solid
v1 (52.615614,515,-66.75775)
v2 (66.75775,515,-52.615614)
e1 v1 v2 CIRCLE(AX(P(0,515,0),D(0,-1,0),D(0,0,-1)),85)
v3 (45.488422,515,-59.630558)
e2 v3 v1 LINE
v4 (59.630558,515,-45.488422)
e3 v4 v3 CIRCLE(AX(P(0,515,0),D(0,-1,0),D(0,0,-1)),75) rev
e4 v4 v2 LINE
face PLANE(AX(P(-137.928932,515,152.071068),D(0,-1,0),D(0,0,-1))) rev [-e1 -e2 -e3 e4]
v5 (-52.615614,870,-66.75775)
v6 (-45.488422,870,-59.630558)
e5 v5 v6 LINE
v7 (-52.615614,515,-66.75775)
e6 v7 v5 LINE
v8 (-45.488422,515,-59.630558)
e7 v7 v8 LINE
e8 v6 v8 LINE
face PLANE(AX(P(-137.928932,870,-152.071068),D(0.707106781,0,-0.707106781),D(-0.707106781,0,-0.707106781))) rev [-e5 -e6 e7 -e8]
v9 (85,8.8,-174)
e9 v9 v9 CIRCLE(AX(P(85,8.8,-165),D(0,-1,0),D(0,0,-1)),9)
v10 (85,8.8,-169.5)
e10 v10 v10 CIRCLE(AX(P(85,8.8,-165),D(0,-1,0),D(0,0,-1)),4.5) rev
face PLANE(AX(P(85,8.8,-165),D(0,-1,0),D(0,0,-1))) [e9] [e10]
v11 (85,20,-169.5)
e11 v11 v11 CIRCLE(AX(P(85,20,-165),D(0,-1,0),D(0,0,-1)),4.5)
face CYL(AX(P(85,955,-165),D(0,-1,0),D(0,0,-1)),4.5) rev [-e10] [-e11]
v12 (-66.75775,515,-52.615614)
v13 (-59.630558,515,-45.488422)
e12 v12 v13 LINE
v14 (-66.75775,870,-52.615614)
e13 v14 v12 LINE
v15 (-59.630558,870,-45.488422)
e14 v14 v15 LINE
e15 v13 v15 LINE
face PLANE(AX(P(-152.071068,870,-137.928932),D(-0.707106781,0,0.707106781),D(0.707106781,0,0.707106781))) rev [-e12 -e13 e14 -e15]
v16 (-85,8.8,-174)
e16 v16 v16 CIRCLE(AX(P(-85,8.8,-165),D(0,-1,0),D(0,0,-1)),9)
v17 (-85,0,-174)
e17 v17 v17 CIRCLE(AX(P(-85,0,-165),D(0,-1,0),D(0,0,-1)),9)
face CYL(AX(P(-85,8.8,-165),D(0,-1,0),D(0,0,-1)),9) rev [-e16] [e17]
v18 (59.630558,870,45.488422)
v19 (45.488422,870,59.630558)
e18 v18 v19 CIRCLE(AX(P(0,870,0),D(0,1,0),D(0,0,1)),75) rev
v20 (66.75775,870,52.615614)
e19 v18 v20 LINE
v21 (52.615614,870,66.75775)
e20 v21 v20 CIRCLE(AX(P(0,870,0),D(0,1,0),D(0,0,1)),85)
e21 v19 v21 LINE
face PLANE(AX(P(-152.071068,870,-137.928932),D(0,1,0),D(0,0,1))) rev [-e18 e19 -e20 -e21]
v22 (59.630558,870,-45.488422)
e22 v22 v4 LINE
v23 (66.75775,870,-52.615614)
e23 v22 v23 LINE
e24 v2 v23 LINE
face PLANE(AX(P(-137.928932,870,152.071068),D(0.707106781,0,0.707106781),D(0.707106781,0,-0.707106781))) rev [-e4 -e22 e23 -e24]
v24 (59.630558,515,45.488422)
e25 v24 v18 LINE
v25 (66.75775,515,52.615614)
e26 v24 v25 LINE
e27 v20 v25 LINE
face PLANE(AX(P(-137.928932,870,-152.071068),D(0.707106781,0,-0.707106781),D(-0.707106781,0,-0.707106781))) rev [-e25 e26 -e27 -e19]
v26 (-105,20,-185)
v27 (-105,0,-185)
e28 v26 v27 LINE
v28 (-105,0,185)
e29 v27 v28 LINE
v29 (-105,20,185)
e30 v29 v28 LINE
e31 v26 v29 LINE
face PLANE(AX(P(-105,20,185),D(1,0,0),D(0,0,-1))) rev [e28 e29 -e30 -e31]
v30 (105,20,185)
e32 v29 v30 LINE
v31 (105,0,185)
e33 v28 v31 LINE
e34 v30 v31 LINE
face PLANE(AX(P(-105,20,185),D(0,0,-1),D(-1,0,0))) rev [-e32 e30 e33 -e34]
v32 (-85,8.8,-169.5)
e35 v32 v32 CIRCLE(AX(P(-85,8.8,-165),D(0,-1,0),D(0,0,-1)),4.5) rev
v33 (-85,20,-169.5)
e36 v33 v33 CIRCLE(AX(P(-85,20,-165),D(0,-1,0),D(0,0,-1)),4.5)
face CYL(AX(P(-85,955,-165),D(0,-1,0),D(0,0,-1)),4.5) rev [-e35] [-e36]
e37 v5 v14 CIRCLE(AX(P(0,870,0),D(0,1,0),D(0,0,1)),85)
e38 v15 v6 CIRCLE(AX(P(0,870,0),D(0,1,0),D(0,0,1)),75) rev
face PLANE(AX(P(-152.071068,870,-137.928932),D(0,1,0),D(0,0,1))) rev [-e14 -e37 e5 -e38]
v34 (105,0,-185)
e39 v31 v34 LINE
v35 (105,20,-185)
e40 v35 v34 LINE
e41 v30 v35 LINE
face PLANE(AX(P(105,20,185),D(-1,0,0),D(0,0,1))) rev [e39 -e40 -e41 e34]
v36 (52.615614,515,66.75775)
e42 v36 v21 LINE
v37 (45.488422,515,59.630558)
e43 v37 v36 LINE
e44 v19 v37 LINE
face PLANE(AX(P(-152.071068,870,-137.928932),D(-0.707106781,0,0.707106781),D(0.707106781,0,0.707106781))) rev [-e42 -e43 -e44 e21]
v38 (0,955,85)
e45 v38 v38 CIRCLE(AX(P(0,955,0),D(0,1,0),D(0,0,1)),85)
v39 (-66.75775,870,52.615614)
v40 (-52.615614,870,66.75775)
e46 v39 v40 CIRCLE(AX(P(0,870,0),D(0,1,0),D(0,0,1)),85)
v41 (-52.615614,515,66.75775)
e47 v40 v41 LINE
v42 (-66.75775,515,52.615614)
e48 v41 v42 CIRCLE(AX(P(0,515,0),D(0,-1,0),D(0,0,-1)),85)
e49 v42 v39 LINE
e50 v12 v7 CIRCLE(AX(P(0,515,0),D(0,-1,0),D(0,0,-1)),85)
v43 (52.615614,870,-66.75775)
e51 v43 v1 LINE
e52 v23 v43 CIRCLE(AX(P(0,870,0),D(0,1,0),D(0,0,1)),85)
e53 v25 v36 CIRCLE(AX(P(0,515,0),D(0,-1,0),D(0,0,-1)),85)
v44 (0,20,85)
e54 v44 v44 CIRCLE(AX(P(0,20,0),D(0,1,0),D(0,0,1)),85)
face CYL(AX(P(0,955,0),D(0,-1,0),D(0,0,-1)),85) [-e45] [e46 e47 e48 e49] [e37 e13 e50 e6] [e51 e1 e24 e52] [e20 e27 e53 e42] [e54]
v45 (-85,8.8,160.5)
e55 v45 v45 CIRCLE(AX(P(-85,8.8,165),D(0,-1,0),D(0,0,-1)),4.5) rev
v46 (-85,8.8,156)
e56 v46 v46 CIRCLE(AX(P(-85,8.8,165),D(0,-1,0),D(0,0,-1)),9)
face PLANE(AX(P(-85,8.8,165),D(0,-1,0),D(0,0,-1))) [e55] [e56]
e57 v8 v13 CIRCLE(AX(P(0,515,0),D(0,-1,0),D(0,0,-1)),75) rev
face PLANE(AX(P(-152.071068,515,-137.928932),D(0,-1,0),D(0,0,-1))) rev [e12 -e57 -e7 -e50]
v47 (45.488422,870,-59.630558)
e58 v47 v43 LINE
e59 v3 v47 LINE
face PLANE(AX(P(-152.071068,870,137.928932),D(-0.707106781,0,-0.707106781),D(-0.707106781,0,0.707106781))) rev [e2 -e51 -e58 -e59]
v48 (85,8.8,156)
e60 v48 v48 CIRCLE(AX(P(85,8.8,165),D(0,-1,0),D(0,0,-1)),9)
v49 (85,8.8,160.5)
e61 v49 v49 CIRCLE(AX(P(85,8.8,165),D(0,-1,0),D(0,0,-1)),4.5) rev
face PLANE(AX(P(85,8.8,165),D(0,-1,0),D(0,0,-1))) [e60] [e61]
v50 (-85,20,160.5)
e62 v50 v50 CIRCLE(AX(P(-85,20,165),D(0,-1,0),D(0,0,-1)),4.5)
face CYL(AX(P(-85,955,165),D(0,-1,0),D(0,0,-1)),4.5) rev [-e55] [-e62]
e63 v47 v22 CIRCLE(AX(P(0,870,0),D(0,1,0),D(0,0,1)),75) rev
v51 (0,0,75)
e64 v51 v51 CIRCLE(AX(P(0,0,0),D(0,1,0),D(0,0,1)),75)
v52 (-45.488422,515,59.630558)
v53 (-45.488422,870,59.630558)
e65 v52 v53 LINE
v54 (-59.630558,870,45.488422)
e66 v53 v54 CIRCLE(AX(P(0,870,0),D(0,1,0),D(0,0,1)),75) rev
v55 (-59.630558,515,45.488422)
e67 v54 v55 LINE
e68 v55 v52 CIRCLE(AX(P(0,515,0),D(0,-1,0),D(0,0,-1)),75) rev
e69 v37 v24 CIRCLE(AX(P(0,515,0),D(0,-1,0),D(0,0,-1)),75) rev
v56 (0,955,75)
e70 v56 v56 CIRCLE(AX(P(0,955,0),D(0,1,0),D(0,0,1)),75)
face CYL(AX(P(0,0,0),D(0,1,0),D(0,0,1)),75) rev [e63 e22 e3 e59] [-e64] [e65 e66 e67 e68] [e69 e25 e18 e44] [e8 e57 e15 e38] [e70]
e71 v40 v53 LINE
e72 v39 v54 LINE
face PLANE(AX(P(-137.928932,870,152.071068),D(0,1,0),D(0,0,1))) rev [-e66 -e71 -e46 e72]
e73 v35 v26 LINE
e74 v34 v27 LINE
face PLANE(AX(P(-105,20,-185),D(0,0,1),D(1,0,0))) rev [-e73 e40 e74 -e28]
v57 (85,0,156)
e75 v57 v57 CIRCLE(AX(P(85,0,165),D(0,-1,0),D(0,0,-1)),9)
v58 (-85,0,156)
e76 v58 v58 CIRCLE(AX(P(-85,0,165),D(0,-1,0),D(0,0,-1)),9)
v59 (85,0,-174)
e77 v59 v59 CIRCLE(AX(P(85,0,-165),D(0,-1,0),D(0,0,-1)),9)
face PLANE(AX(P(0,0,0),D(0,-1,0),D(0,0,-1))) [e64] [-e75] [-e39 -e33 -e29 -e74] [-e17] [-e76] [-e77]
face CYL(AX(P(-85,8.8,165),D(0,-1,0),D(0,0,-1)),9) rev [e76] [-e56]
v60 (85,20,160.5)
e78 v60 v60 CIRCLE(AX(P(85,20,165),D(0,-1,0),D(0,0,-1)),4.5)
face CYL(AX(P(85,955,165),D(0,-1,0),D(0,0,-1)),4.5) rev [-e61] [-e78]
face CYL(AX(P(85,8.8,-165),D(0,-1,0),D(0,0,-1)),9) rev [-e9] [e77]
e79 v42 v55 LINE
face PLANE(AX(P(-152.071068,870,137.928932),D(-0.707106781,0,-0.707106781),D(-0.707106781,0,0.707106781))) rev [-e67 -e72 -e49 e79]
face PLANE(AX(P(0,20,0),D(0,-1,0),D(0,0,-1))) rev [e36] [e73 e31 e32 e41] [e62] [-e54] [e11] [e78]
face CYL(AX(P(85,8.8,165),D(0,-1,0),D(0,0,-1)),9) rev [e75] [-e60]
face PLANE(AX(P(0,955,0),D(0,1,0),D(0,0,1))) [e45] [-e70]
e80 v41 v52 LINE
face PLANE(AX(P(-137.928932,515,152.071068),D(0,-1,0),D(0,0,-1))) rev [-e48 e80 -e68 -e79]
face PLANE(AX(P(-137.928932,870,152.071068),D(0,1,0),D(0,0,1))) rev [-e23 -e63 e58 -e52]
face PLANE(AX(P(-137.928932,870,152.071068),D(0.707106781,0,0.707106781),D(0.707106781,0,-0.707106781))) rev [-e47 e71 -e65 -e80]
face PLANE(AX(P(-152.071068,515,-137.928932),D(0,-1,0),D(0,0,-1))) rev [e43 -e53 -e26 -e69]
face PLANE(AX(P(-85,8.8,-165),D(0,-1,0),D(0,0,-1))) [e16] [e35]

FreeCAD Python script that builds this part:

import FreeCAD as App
import Part
import Sketcher
Q = App.Units.Quantity


def add_polygon(sketch, points):
    """Adds a closed chain of lines whose ends are joined by coincident constraints."""
    first, n = sketch.GeometryCount, len(points)
    for a, b in zip(points, points[1:] + points[:1]):
        sketch.addGeometry(Part.LineSegment(App.Vector(*a, 0), App.Vector(*b, 0)), False)
    for i in range(n):
        sketch.addConstraint(Sketcher.Constraint("Coincident", first + i, 2, first + (i + 1) % n, 1))

doc = App.newDocument("Part")
body = doc.addObject("PartDesign::Body", "Body")

# Sketch on XZ plane
sketch1 = body.newObject("Sketcher::SketchObject", "Sketch")
sketch1.AttachmentSupport = (doc.getObject("XZ_Plane"), [""])
sketch1.MapMode = "FlatFace"
add_polygon(sketch1, [(-105, -185), (-105, 185), (105, 185), (105, -185)])  # lines 0-3
sketch1.addConstraint([
    Sketcher.Constraint("Vertical", 0),
    Sketcher.Constraint("Horizontal", 1),
    Sketcher.Constraint("Vertical", 2),
    Sketcher.Constraint("Horizontal", 3),
    Sketcher.Constraint("Symmetric", 0, 2, 2, 2, -1, 1),
    Sketcher.Constraint("DistanceX", 1, 1, 1, 2, Q("210 mm")),
    Sketcher.Constraint("DistanceY", 0, 1, 0, 2, Q("370 mm")),
])
pad1 = body.newObject("PartDesign::Pad", "Pad")
pad1.Profile = sketch1
pad1.Length = 20
pad1.Reversed = True

# Sketch on XZ plane
sketch2 = body.newObject("Sketcher::SketchObject", "Sketch001")
sketch2.AttachmentSupport = (doc.getObject("XZ_Plane"), [""])
sketch2.MapMode = "FlatFace"
sketch2.AttachmentOffset = App.Placement(App.Vector(0, 0, -20), App.Rotation())
sketch2.addGeometry(Part.Circle(App.Vector(0, 0, 0), App.Vector(0, 0, 1), 85), False)
sketch2.addConstraint([
    Sketcher.Constraint("Coincident", 0, 3, -1, 1),
    Sketcher.Constraint("Diameter", 0, Q("170 mm")),
])
pad2 = body.newObject("PartDesign::Pad", "Pad001")
pad2.Profile = sketch2
pad2.Length = 935
pad2.Reversed = True

# Sketch on XZ plane
sketch3 = body.newObject("Sketcher::SketchObject", "Sketch002")
sketch3.AttachmentSupport = (doc.getObject("XZ_Plane"), [""])
sketch3.MapMode = "FlatFace"
sketch3.AttachmentOffset = App.Placement(App.Vector(0, 0, -955), App.Rotation())
sketch3.addGeometry(Part.Circle(App.Vector(0, 0, 0), App.Vector(0, 0, 1), 75), False)
sketch3.addConstraint([
    Sketcher.Constraint("Coincident", 0, 3, -1, 1),
    Sketcher.Constraint("Diameter", 0, Q("150 mm")),
])
pocket1 = body.newObject("PartDesign::Pocket", "Pocket")
pocket1.Profile = sketch3
pocket1.Type = "ThroughAll"
pocket1.Reversed = True

# Sketch on XZ plane
sketch4 = body.newObject("Sketcher::SketchObject", "Sketch003")
sketch4.AttachmentSupport = (doc.getObject("XZ_Plane"), [""])
sketch4.MapMode = "FlatFace"
sketch4.addGeometry([
    Part.Circle(App.Vector(-85, 165, 0), App.Vector(0, 0, 1), 4.5),
    Part.Circle(App.Vector(85, 165, 0), App.Vector(0, 0, 1), 4.5),
    Part.Circle(App.Vector(85, -165, 0), App.Vector(0, 0, 1), 4.5),
    Part.Circle(App.Vector(-85, -165, 0), App.Vector(0, 0, 1), 4.5),
], False)
sketch4.addConstraint([
    Sketcher.Constraint("Equal", 0, 1),
    Sketcher.Constraint("Equal", 1, 2),
    Sketcher.Constraint("Equal", 2, 3),
    Sketcher.Constraint("Symmetric", 0, 3, 2, 3, -1, 1),
    Sketcher.Constraint("Symmetric", 1, 3, 3, 3, -1, 1),
    Sketcher.Constraint("Symmetric", 0, 3, 1, 3, -2),
    Sketcher.Constraint("Diameter", 0, Q("9 mm")),
    Sketcher.Constraint("DistanceX", 0, 3, -1, 1, Q("85 mm")),
    Sketcher.Constraint("DistanceY", -1, 1, 0, 3, Q("165 mm")),
])
pocket2 = body.newObject("PartDesign::Pocket", "Pocket001")
pocket2.Profile = sketch4
pocket2.Type = "ThroughAll"

# Sketch on XZ plane
sketch5 = body.newObject("Sketcher::SketchObject", "Sketch004")
sketch5.AttachmentSupport = (doc.getObject("XZ_Plane"), [""])
sketch5.MapMode = "FlatFace"
sketch5.addGeometry([
    Part.Circle(App.Vector(-85, 165, 0), App.Vector(0, 0, 1), 9),
    Part.Circle(App.Vector(85, 165, 0), App.Vector(0, 0, 1), 9),
    Part.Circle(App.Vector(85, -165, 0), App.Vector(0, 0, 1), 9),
    Part.Circle(App.Vector(-85, -165, 0), App.Vector(0, 0, 1), 9),
], False)
sketch5.addConstraint([
    Sketcher.Constraint("Equal", 0, 1),
    Sketcher.Constraint("Equal", 1, 2),
    Sketcher.Constraint("Equal", 2, 3),
    Sketcher.Constraint("Symmetric", 0, 3, 2, 3, -1, 1),
    Sketcher.Constraint("Symmetric", 1, 3, 3, 3, -1, 1),
    Sketcher.Constraint("Symmetric", 0, 3, 1, 3, -2),
    Sketcher.Constraint("Diameter", 0, Q("18 mm")),
    Sketcher.Constraint("DistanceX", 0, 3, -1, 1, Q("85 mm")),
    Sketcher.Constraint("DistanceY", -1, 1, 0, 3, Q("165 mm")),
])
pocket3 = body.newObject("PartDesign::Pocket", "Pocket002")
pocket3.Profile = sketch5
pocket3.Length = 8.8

# Sketch on an angled plane
sketch6 = body.newObject("Sketcher::SketchObject", "Sketch005")
sketch6.Placement = App.Placement(App.Vector(60.104076, 0, 60.104076), App.Rotation(App.Vector(0.707106781, 0, -0.707106781), App.Vector(0, 0.999999999, 0), App.Vector(0.707106781, 0, 0.707106781), "ZXY"))
add_polygon(sketch6, [(-10, 869.999999), (-10, 514.999999), (10, 514.999999), (10, 869.999999)])  # lines 0-3
sketch6.addConstraint([
    Sketcher.Constraint("Vertical", 0),
    Sketcher.Constraint("Horizontal", 1),
    Sketcher.Constraint("Vertical", 2),
    Sketcher.Constraint("Horizontal", 3),
    Sketcher.Constraint("DistanceX", 1, 1, 1, 2, Q("20 mm")),
    Sketcher.Constraint("DistanceY", 0, 2, 0, 1, Q("355 mm")),
    Sketcher.Constraint("DistanceX", 0, 2, -1, 1, Q("10 mm")),
    Sketcher.Constraint("DistanceY", -1, 1, 0, 2, Q("514.999999 mm")),
])
pocket4 = body.newObject("PartDesign::Pocket", "Pocket003")
pocket4.Profile = sketch6
pocket4.Type = "ThroughAll"

# Sketch on an angled plane
sketch7 = body.newObject("Sketcher::SketchObject", "Sketch006")
sketch7.Placement = App.Placement(App.Vector(60.104076, 0, -60.104076), App.Rotation(App.Vector(-0.707106781, 0, -0.707106781), App.Vector(0, 0.999999999, 0), App.Vector(0.707106781, 0, -0.707106781), "ZXY"))
add_polygon(sketch7, [(-10, 869.999999), (-10, 514.999999), (10, 514.999999), (10, 869.999999)])  # lines 0-3
sketch7.addConstraint([
    Sketcher.Constraint("Vertical", 0),
    Sketcher.Constraint("Horizontal", 1),
    Sketcher.Constraint("Vertical", 2),
    Sketcher.Constraint("Horizontal", 3),
    Sketcher.Constraint("DistanceX", 1, 1, 1, 2, Q("20 mm")),
    Sketcher.Constraint("DistanceY", 0, 2, 0, 1, Q("355 mm")),
    Sketcher.Constraint("DistanceX", 0, 2, -1, 1, Q("10 mm")),
    Sketcher.Constraint("DistanceY", -1, 1, 0, 2, Q("514.999999 mm")),
])
pocket5 = body.newObject("PartDesign::Pocket", "Pocket004")
pocket5.Profile = sketch7
pocket5.Type = "ThroughAll"

doc.recompute()
